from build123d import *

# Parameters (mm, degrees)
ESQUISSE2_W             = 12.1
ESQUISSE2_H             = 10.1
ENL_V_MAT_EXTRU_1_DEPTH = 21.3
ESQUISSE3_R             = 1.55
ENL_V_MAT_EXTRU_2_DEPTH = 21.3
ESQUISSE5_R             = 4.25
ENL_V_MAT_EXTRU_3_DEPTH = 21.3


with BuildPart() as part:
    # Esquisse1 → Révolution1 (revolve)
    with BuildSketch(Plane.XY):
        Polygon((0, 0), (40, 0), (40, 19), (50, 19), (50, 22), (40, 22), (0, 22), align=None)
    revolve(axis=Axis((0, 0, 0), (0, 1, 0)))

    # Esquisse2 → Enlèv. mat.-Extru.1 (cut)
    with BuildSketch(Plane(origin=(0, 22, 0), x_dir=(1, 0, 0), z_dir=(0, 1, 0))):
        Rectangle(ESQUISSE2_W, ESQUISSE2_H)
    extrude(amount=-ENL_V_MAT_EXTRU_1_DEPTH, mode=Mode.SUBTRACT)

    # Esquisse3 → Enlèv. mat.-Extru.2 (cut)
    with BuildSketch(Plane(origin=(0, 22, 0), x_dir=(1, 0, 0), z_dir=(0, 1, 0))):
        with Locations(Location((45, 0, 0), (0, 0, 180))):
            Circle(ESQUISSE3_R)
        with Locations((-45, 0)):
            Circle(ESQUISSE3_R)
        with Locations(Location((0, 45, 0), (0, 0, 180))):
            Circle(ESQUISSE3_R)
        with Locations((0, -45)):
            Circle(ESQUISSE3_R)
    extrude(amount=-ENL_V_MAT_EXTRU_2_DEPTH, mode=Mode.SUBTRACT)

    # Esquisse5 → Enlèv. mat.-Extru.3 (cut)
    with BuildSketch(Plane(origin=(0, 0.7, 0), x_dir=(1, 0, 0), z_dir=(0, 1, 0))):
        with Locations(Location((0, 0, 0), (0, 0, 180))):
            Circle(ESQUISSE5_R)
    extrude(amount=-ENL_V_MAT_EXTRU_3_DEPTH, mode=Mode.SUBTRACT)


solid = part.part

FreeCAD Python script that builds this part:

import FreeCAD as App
import Part
import Sketcher
Q = App.Units.Quantity

doc = App.newDocument("Part")
body = doc.addObject("PartDesign::Body", "Body")

sketch1 = body.newObject("Sketcher::SketchObject", "Sketch")
sketch1.AttachmentSupport = (doc.getObject("XY_Plane"), [""])
sketch1.MapMode = "FlatFace"
sketch1.addGeometry(Part.LineSegment(App.Vector(0, 0, 0), App.Vector(40, 0, 0)), False)
sketch1.addGeometry(Part.LineSegment(App.Vector(40, 0, 0), App.Vector(40, 19, 0)), False)
sketch1.addGeometry(Part.LineSegment(App.Vector(40, 19, 0), App.Vector(50, 19, 0)), False)
sketch1.addGeometry(Part.LineSegment(App.Vector(50, 19, 0), App.Vector(50, 22, 0)), False)
sketch1.addGeometry(Part.LineSegment(App.Vector(50, 22, 0), App.Vector(0, 22, 0)), False)
sketch1.addGeometry(Part.LineSegment(App.Vector(0, 22, 0), App.Vector(0, 0, 0)), False)
sketch1.addConstraint(Sketcher.Constraint("Coincident", 0, 2, 1, 1))
sketch1.addConstraint(Sketcher.Constraint("Coincident", 1, 2, 2, 1))
sketch1.addConstraint(Sketcher.Constraint("Coincident", 2, 2, 3, 1))
sketch1.addConstraint(Sketcher.Constraint("Coincident", 3, 2, 4, 1))
sketch1.addConstraint(Sketcher.Constraint("Coincident", 4, 2, 5, 1))
sketch1.addConstraint(Sketcher.Constraint("Coincident", 5, 2, 0, 1))
sketch1.addConstraint(Sketcher.Constraint("Horizontal", 0))
sketch1.addConstraint(Sketcher.Constraint("Vertical", 1))
sketch1.addConstraint(Sketcher.Constraint("Horizontal", 2))
sketch1.addConstraint(Sketcher.Constraint("Vertical", 3))
sketch1.addConstraint(Sketcher.Constraint("Horizontal", 4))
sketch1.addConstraint(Sketcher.Constraint("Vertical", 5))
sketch1.addConstraint(Sketcher.Constraint("Coincident", 5, 2, -1, 1))
sketch1.addConstraint(Sketcher.Constraint("DistanceX", 0, 1, 0, 2, Q("40 mm")))
sketch1.addConstraint(Sketcher.Constraint("DistanceX", 2, 1, 2, 2, Q("10 mm")))
sketch1.addConstraint(Sketcher.Constraint("DistanceY", 1, 1, 1, 2, Q("19 mm")))
sketch1.addConstraint(Sketcher.Constraint("DistanceY", 3, 1, 3, 2, Q("3 mm")))
revolution = body.newObject("PartDesign::Revolution", "Revolution")
revolution.Profile = sketch1
revolution.ReferenceAxis = (sketch1, ["V_Axis"])
revolution.Angle = 360

sketch2 = body.newObject("Sketcher::SketchObject", "Sketch001")
sketch2.AttachmentSupport = (doc.getObject("XZ_Plane"), [""])
sketch2.MapMode = "FlatFace"
sketch2.AttachmentOffset = App.Placement(App.Vector(0, 0, -22), App.Rotation())
sketch2.addGeometry(Part.LineSegment(App.Vector(-6, -5, 0), App.Vector(-6, 5, 0)), False)
sketch2.addGeometry(Part.LineSegment(App.Vector(-6, 5, 0), App.Vector(6, 5, 0)), False)
sketch2.addGeometry(Part.LineSegment(App.Vector(6, 5, 0), App.Vector(6, -5, 0)), False)
sketch2.addGeometry(Part.LineSegment(App.Vector(6, -5, 0), App.Vector(-6, -5, 0)), False)
sketch2.addConstraint(Sketcher.Constraint("Coincident", 0, 2, 1, 1))
sketch2.addConstraint(Sketcher.Constraint("Coincident", 1, 2, 2, 1))
sketch2.addConstraint(Sketcher.Constraint("Coincident", 2, 2, 3, 1))
sketch2.addConstraint(Sketcher.Constraint("Coincident", 3, 2, 0, 1))
sketch2.addConstraint(Sketcher.Constraint("Vertical", 0))
sketch2.addConstraint(Sketcher.Constraint("Horizontal", 1))
sketch2.addConstraint(Sketcher.Constraint("Vertical", 2))
sketch2.addConstraint(Sketcher.Constraint("Horizontal", 3))
sketch2.addConstraint(Sketcher.Constraint("Symmetric", 0, 2, 2, 2, -1, 1))
sketch2.addConstraint(Sketcher.Constraint("DistanceX", 1, 1, 1, 2, Q("12.1 mm")))
sketch2.addConstraint(Sketcher.Constraint("DistanceY", 0, 1, 0, 2, Q("10.1 mm")))
pocket1 = body.newObject("PartDesign::Pocket", "Pocket")
pocket1.Profile = sketch2
pocket1.Length = 21.3
pocket1.Reversed = True

sketch3 = body.newObject("Sketcher::SketchObject", "Sketch002")
sketch3.AttachmentSupport = (doc.getObject("XZ_Plane"), [""])
sketch3.MapMode = "FlatFace"
sketch3.AttachmentOffset = App.Placement(App.Vector(0, 0, -22), App.Rotation())
sketch3.addGeometry(Part.Circle(App.Vector(45, 0, 0), App.Vector(0, 0, 1), 1.6), False)
sketch3.addGeometry(Part.Circle(App.Vector(-45, 0, 0), App.Vector(0, 0, 1), 1.6), False)
sketch3.addGeometry(Part.Circle(App.Vector(0, -45, 0), App.Vector(0, 0, 1), 1.6), False)
sketch3.addGeometry(Part.Circle(App.Vector(0, 45, 0), App.Vector(0, 0, 1), 1.6), False)
sketch3.addConstraint(Sketcher.Constraint("Equal", 0, 1))
sketch3.addConstraint(Sketcher.Constraint("Equal", 1, 2))
sketch3.addConstraint(Sketcher.Constraint("Equal", 2, 3))
sketch3.addConstraint(Sketcher.Constraint("Symmetric", 0, 3, 1, 3, -1, 1))
sketch3.addConstraint(Sketcher.Constraint("Symmetric", 2, 3, 3, 3, -1, 1))
sketch3.addConstraint(Sketcher.Constraint("PointOnObject", 0, 3, -1))
sketch3.addConstraint(Sketcher.Constraint("PointOnObject", 2, 3, -2))
sketch3.addConstraint(Sketcher.Constraint("Diameter", 0, Q("3.1 mm")))
sketch3.addConstraint(Sketcher.Constraint("DistanceX", -1, 1, 0, 3, Q("45 mm")))
sketch3.addConstraint(Sketcher.Constraint("DistanceY", 2, 3, -1, 1, Q("45 mm")))
pocket2 = body.newObject("PartDesign::Pocket", "Pocket001")
pocket2.Profile = sketch3
pocket2.Length = 21.3
pocket2.Reversed = True

sketch4 = body.newObject("Sketcher::SketchObject", "Sketch003")
sketch4.AttachmentSupport = (doc.getObject("XZ_Plane"), [""])
sketch4.MapMode = "FlatFace"
sketch4.AttachmentOffset = App.Placement(App.Vector(0, 0, -0.7), App.Rotation())
sketch4.addGeometry(Part.Circle(App.Vector(0, 0, 0), App.Vector(0, 0, 1), 4.2), False)
sketch4.addConstraint(Sketcher.Constraint("Coincident", 0, 3, -1, 1))
sketch4.addConstraint(Sketcher.Constraint("Diameter", 0, Q("8.5 mm")))
pocket3 = body.newObject("PartDesign::Pocket", "Pocket002")
pocket3.Profile = sketch4
pocket3.Length = 21.3
pocket3.Reversed = True

doc.recompute()
